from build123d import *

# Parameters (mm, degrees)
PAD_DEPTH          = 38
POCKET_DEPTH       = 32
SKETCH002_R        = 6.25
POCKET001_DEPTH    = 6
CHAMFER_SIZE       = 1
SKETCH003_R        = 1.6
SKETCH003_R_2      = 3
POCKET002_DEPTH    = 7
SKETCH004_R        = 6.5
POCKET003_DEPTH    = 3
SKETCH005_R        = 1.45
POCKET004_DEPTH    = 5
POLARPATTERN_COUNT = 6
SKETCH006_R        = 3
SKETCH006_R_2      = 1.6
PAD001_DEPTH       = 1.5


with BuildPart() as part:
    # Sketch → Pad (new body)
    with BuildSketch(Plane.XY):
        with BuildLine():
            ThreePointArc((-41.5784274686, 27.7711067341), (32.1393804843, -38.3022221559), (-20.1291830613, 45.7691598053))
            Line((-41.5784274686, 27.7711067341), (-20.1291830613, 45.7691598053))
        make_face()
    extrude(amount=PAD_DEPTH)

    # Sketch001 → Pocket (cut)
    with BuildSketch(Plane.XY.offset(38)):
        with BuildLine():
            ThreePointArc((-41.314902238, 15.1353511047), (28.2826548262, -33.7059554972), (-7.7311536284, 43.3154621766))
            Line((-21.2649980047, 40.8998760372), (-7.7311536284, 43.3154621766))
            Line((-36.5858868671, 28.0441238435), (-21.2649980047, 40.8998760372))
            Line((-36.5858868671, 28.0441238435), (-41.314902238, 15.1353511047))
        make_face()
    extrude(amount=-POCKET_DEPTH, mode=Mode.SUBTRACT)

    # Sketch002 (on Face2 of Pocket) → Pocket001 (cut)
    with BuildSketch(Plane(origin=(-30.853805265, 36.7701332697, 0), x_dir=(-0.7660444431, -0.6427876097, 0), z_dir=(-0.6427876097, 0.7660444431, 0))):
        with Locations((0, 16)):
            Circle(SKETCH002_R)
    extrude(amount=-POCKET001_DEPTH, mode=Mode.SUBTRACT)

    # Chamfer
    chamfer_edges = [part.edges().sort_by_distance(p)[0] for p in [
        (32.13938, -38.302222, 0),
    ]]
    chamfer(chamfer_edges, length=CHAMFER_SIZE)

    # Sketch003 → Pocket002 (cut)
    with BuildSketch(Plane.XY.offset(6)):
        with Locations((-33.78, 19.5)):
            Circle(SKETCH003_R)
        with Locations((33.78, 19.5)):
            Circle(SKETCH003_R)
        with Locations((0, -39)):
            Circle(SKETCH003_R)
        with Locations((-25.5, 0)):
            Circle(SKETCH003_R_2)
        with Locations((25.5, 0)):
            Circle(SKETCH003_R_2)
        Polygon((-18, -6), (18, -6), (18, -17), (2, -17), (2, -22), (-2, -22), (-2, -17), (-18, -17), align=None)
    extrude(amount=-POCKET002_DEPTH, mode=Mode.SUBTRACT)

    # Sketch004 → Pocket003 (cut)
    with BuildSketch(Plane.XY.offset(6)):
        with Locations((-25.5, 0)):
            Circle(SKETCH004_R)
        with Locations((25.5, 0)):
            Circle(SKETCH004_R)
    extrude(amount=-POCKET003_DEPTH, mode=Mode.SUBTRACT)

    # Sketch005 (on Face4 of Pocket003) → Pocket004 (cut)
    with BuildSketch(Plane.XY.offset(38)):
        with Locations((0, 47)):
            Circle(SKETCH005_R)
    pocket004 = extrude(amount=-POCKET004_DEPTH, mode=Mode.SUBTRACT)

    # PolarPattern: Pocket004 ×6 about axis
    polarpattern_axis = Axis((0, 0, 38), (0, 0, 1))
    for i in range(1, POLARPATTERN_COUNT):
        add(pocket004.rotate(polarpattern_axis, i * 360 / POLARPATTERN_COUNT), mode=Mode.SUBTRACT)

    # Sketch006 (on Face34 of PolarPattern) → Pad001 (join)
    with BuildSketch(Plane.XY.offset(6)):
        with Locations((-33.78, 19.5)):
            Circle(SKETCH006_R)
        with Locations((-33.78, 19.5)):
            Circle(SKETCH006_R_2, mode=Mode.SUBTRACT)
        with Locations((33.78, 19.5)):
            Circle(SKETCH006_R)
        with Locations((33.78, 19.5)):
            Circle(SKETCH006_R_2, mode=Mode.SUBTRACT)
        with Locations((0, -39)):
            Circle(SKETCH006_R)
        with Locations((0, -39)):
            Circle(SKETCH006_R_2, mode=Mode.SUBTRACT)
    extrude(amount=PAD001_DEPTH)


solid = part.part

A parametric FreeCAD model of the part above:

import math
import FreeCAD as App
import Part
import Sketcher
from FreeCAD import Vector
Q = App.Units.Quantity


def edges_at(feature, points):
    """Names of the edges that pass closest to the given points."""
    edges = feature.Shape.Edges
    near = lambda p: min(range(len(edges)), key=lambda i: edges[i].distToShape(Part.Vertex(*p))[0])
    return sorted({f"Edge{near(p) + 1}" for p in points})


def add_polygon(sketch, points):
    """Adds a closed chain of lines whose ends are joined by coincident constraints."""
    first, n = sketch.GeometryCount, len(points)
    for a, b in zip(points, points[1:] + points[:1]):
        sketch.addGeometry(Part.LineSegment(App.Vector(*a, 0), App.Vector(*b, 0)), False)
    for i in range(n):
        sketch.addConstraint(Sketcher.Constraint("Coincident", first + i, 2, first + (i + 1) % n, 1))

doc = App.newDocument("Part")
body = doc.addObject("PartDesign::Body", "Body")

# Sketch on XY plane
sketch1 = body.newObject("Sketcher::SketchObject", "Sketch")
sketch1.AttachmentSupport = (doc.getObject("XY_Plane"), [""])
sketch1.MapMode = "FlatFace"
sketch1.addGeometry([
    Part.ArcOfCircle(Part.Circle(Vector(0, 0, 0), Vector(0, 0, 1), 50), math.radians(146), math.radians(474)),
    Part.LineSegment(Vector(-20, 46, 0), Vector(-42, 28, 0)),
], False)
sketch1.addConstraint([
    Sketcher.Constraint("Coincident", 0, 1, 1, 2),
    Sketcher.Constraint("Coincident", 1, 1, 0, 2),
    Sketcher.Constraint("Coincident", 0, 3, -1, 1),
    Sketcher.Constraint("Radius", 0, Q("50 mm")),
    Sketcher.Constraint("Angle", 1, Q("-140 deg")),
    Sketcher.Constraint("Distance", 1, Q("28 mm")),
])
pad1 = body.newObject("PartDesign::Pad", "Pad")
pad1.Profile = sketch1
pad1.Length = 38

# Sketch on XY plane
sketch2 = body.newObject("Sketcher::SketchObject", "Sketch001")
sketch2.AttachmentSupport = (doc.getObject("XY_Plane"), [""])
sketch2.MapMode = "FlatFace"
sketch2.AttachmentOffset = App.Placement(Vector(0, 0, 38), App.Rotation())
sketch2.addGeometry([
    Part.ArcOfCircle(Part.Circle(Vector(0, 0, 0), Vector(0, 0, 1), 44), math.radians(160), math.radians(460)),
    Part.LineSegment(Vector(-8, 43, 0), Vector(-21, 41, 0)),
    Part.LineSegment(Vector(-21, 41, 0), Vector(-37, 28, 0)),
    Part.LineSegment(Vector(-37, 28, 0), Vector(-41, 15, 0)),
], False)
sketch2.addConstraint([
    Sketcher.Constraint("Tangent", 0, 2, 1, 1),
    Sketcher.Constraint("Coincident", 1, 2, 2, 1),
    Sketcher.Constraint("Coincident", 2, 2, 3, 1),
    Sketcher.Constraint("Tangent", 3, 2, 0, 1),
    Sketcher.Constraint("Coincident", 0, 3, -1, 1),
    Sketcher.Constraint("Equal", 1, 3),
    Sketcher.Constraint("Radius", 0, Q("44 mm")),
    Sketcher.Constraint("Angle", 2, Q("-140 deg")),
    Sketcher.Constraint("Distance", 2, Q("20 mm")),
    Sketcher.Constraint("DistanceX", 1, 2, -1, 1, Q("21.264998 mm")),
])
pocket1 = body.newObject("PartDesign::Pocket", "Pocket")
pocket1.Profile = sketch2
pocket1.Length = 32

# Sketch on an angled plane
sketch3 = body.newObject("Sketcher::SketchObject", "Sketch002")
sketch3.Placement = App.Placement(Vector(-30.853805, 36.770133, 0), App.Rotation(Vector(-0.766044443, -0.64278761, 0), Vector(0, 0, 1), Vector(-0.64278761, 0.766044443, 0), "ZXY"))
sketch3.addGeometry(Part.Circle(Vector(0, 16, 0), Vector(0, 0, 1), 6), False)
sketch3.addConstraint([
    Sketcher.Constraint("PointOnObject", 0, 3, -2),
    Sketcher.Constraint("Diameter", 0, Q("12.5 mm")),
    Sketcher.Constraint("DistanceY", -1, 1, 0, 3, Q("16 mm")),
])
pocket2 = body.newObject("PartDesign::Pocket", "Pocket001")
pocket2.Profile = sketch3
pocket2.Length = 6
doc.recompute()

chamfer = body.newObject("PartDesign::Chamfer", "Chamfer")
chamfer.Base = (pocket2, edges_at(pocket2, [(32.139, -38.302, 0)]))
chamfer.Size = 1

# Sketch on XY plane
sketch4 = body.newObject("Sketcher::SketchObject", "Sketch003")
sketch4.AttachmentSupport = (doc.getObject("XY_Plane"), [""])
sketch4.MapMode = "FlatFace"
sketch4.AttachmentOffset = App.Placement(Vector(0, 0, 6), App.Rotation())
sketch4.addGeometry(Part.Circle(Vector(-33.8, 19.5, 0), Vector(0, 0, 1), 1.6), False)  # 0
sketch4.addGeometry(Part.Circle(Vector(33.8, 19.5, 0), Vector(0, 0, 1), 1.6), False)  # 1
sketch4.addGeometry(Part.Circle(Vector(0, -39, 0), Vector(0, 0, 1), 1.6), False)  # 2
sketch4.addGeometry(Part.Circle(Vector(-25.5, 0, 0), Vector(0, 0, 1), 3), False)  # 3
sketch4.addGeometry(Part.Circle(Vector(25.5, 0, 0), Vector(0, 0, 1), 3), False)  # 4
add_polygon(sketch4, [(18, -6), (-18, -6), (-18, -17), (-2, -17), (-2, -22), (2, -22), (2, -17), (18, -17)])  # lines 5-12
sketch4.addConstraint([
    Sketcher.Constraint("Horizontal", 5),
    Sketcher.Constraint("Vertical", 6),
    Sketcher.Constraint("Horizontal", 7),
    Sketcher.Constraint("Vertical", 8),
    Sketcher.Constraint("Horizontal", 9),
    Sketcher.Constraint("Vertical", 10),
    Sketcher.Constraint("Horizontal", 11),
    Sketcher.Constraint("Vertical", 12),
    Sketcher.Constraint("Equal", 0, 1),
    Sketcher.Constraint("Equal", 1, 2),
    Sketcher.Constraint("Equal", 3, 4),
    Sketcher.Constraint("Symmetric", 3, 3, 4, 3, -1, 1),
    Sketcher.Constraint("Symmetric", 0, 3, 1, 3, -2),
    Sketcher.Constraint("Symmetric", 7, 2, 10, 2, -2),
    Sketcher.Constraint("PointOnObject", 2, 3, -2),
    Sketcher.Constraint("PointOnObject", 3, 3, -1),
    Sketcher.Constraint("Equal", 7, 11),
    Sketcher.Constraint("Diameter", 3, Q("6 mm")),
    Sketcher.Constraint("Diameter", 0, Q("3.2 mm")),
    Sketcher.Constraint("DistanceX", 5, 2, 5, 1, Q("36 mm")),
    Sketcher.Constraint("DistanceX", 7, 1, 7, 2, Q("16 mm")),
    Sketcher.Constraint("DistanceY", 6, 2, 6, 1, Q("11 mm")),
    Sketcher.Constraint("DistanceY", 8, 2, 8, 1, Q("5 mm")),
    Sketcher.Constraint("DistanceY", 2, 3, -1, 1, Q("39 mm")),
    Sketcher.Constraint("DistanceY", 5, 2, -1, 1, Q("6 mm")),
    Sketcher.Constraint("DistanceX", 3, 3, 4, 3, Q("51 mm")),
    Sketcher.Constraint("DistanceY", -1, 1, 0, 3, Q("19.5 mm")),
    Sketcher.Constraint("DistanceX", 0, 3, -1, 1, Q("33.78 mm")),
])
pocket3 = body.newObject("PartDesign::Pocket", "Pocket002")
pocket3.Profile = sketch4
pocket3.Length = 7

# Sketch on XY plane
sketch5 = body.newObject("Sketcher::SketchObject", "Sketch004")
sketch5.AttachmentSupport = (doc.getObject("XY_Plane"), [""])
sketch5.MapMode = "FlatFace"
sketch5.AttachmentOffset = App.Placement(Vector(0, 0, 6), App.Rotation())
sketch5.addGeometry([
    Part.Circle(Vector(-26, 0, 0), Vector(0, 0, 1), 6),
    Part.Circle(Vector(26, 0, 0), Vector(0, 0, 1), 6),
], False)
sketch5.addConstraint([
    Sketcher.Constraint("Equal", 0, 1),
    Sketcher.Constraint("Symmetric", 0, 3, 1, 3, -1, 1),
    Sketcher.Constraint("PointOnObject", 0, 3, -1),
    Sketcher.Constraint("Diameter", 0, Q("13 mm")),
    Sketcher.Constraint("DistanceX", 0, 3, 1, 3, Q("51 mm")),
])
pocket4 = body.newObject("PartDesign::Pocket", "Pocket003")
pocket4.Profile = sketch5
pocket4.Length = 3

# Sketch on XY plane
sketch6 = body.newObject("Sketcher::SketchObject", "Sketch005")
sketch6.AttachmentSupport = (doc.getObject("XY_Plane"), [""])
sketch6.MapMode = "FlatFace"
sketch6.AttachmentOffset = App.Placement(Vector(0, 0, 38), App.Rotation())
sketch6.addGeometry(Part.Circle(Vector(0, 47, 0), Vector(0, 0, 1), 1.4), False)
sketch6.addConstraint([
    Sketcher.Constraint("PointOnObject", 0, 3, -2),
    Sketcher.Constraint("Diameter", 0, Q("2.9 mm")),
    Sketcher.Constraint("DistanceY", -1, 1, 0, 3, Q("47 mm")),
])
pocket5 = body.newObject("PartDesign::Pocket", "Pocket004")
pocket5.Profile = sketch6
pocket5.Length = 5
doc.recompute()

polarpattern = body.newObject("PartDesign::PolarPattern", "PolarPattern")
polarpattern.Originals = [pocket5]
polarpattern.Axis = (doc.getObject("Z_Axis"), [""])
polarpattern.Angle = 360
polarpattern.Occurrences = 6
body.Tip = polarpattern

# Sketch on XY plane
sketch7 = body.newObject("Sketcher::SketchObject", "Sketch006")
sketch7.AttachmentSupport = (doc.getObject("XY_Plane"), [""])
sketch7.MapMode = "FlatFace"
sketch7.AttachmentOffset = App.Placement(Vector(0, 0, 6), App.Rotation())
sketch7.addGeometry([
    Part.Circle(Vector(-33.8, 19.5, 0), Vector(0, 0, 1), 3),  # 0
    Part.Circle(Vector(-33.8, 19.5, 0), Vector(0, 0, 1), 1.6),  # 1
    Part.Circle(Vector(33.8, 19.5, 0), Vector(0, 0, 1), 3),  # 2
    Part.Circle(Vector(33.8, 19.5, 0), Vector(0, 0, 1), 1.6),  # 3
    Part.Circle(Vector(0, -39, 0), Vector(0, 0, 1), 3),  # 4
    Part.Circle(Vector(0, -39, 0), Vector(0, 0, 1), 1.6),  # 5
], False)
sketch7.addConstraint([
    Sketcher.Constraint("Coincident", 1, 3, 0, 3),
    Sketcher.Constraint("Coincident", 3, 3, 2, 3),
    Sketcher.Constraint("Coincident", 5, 3, 4, 3),
    Sketcher.Constraint("Equal", 0, 2),
    Sketcher.Constraint("Equal", 1, 3),
    Sketcher.Constraint("Equal", 2, 4),
    Sketcher.Constraint("Equal", 3, 5),
    Sketcher.Constraint("Symmetric", 0, 3, 2, 3, -2),
    Sketcher.Constraint("PointOnObject", 4, 3, -2),
    Sketcher.Constraint("Diameter", 0, Q("6 mm")),
    Sketcher.Constraint("Diameter", 1, Q("3.2 mm")),
    Sketcher.Constraint("DistanceY", 4, 3, -1, 1, Q("39 mm")),
    Sketcher.Constraint("DistanceY", -1, 1, 0, 3, Q("19.5 mm")),
    Sketcher.Constraint("DistanceX", 0, 3, -1, 1, Q("33.78 mm")),
])
pad2 = body.newObject("PartDesign::Pad", "Pad001")
pad2.Profile = sketch7
pad2.Length = 1.5

doc.recompute()
